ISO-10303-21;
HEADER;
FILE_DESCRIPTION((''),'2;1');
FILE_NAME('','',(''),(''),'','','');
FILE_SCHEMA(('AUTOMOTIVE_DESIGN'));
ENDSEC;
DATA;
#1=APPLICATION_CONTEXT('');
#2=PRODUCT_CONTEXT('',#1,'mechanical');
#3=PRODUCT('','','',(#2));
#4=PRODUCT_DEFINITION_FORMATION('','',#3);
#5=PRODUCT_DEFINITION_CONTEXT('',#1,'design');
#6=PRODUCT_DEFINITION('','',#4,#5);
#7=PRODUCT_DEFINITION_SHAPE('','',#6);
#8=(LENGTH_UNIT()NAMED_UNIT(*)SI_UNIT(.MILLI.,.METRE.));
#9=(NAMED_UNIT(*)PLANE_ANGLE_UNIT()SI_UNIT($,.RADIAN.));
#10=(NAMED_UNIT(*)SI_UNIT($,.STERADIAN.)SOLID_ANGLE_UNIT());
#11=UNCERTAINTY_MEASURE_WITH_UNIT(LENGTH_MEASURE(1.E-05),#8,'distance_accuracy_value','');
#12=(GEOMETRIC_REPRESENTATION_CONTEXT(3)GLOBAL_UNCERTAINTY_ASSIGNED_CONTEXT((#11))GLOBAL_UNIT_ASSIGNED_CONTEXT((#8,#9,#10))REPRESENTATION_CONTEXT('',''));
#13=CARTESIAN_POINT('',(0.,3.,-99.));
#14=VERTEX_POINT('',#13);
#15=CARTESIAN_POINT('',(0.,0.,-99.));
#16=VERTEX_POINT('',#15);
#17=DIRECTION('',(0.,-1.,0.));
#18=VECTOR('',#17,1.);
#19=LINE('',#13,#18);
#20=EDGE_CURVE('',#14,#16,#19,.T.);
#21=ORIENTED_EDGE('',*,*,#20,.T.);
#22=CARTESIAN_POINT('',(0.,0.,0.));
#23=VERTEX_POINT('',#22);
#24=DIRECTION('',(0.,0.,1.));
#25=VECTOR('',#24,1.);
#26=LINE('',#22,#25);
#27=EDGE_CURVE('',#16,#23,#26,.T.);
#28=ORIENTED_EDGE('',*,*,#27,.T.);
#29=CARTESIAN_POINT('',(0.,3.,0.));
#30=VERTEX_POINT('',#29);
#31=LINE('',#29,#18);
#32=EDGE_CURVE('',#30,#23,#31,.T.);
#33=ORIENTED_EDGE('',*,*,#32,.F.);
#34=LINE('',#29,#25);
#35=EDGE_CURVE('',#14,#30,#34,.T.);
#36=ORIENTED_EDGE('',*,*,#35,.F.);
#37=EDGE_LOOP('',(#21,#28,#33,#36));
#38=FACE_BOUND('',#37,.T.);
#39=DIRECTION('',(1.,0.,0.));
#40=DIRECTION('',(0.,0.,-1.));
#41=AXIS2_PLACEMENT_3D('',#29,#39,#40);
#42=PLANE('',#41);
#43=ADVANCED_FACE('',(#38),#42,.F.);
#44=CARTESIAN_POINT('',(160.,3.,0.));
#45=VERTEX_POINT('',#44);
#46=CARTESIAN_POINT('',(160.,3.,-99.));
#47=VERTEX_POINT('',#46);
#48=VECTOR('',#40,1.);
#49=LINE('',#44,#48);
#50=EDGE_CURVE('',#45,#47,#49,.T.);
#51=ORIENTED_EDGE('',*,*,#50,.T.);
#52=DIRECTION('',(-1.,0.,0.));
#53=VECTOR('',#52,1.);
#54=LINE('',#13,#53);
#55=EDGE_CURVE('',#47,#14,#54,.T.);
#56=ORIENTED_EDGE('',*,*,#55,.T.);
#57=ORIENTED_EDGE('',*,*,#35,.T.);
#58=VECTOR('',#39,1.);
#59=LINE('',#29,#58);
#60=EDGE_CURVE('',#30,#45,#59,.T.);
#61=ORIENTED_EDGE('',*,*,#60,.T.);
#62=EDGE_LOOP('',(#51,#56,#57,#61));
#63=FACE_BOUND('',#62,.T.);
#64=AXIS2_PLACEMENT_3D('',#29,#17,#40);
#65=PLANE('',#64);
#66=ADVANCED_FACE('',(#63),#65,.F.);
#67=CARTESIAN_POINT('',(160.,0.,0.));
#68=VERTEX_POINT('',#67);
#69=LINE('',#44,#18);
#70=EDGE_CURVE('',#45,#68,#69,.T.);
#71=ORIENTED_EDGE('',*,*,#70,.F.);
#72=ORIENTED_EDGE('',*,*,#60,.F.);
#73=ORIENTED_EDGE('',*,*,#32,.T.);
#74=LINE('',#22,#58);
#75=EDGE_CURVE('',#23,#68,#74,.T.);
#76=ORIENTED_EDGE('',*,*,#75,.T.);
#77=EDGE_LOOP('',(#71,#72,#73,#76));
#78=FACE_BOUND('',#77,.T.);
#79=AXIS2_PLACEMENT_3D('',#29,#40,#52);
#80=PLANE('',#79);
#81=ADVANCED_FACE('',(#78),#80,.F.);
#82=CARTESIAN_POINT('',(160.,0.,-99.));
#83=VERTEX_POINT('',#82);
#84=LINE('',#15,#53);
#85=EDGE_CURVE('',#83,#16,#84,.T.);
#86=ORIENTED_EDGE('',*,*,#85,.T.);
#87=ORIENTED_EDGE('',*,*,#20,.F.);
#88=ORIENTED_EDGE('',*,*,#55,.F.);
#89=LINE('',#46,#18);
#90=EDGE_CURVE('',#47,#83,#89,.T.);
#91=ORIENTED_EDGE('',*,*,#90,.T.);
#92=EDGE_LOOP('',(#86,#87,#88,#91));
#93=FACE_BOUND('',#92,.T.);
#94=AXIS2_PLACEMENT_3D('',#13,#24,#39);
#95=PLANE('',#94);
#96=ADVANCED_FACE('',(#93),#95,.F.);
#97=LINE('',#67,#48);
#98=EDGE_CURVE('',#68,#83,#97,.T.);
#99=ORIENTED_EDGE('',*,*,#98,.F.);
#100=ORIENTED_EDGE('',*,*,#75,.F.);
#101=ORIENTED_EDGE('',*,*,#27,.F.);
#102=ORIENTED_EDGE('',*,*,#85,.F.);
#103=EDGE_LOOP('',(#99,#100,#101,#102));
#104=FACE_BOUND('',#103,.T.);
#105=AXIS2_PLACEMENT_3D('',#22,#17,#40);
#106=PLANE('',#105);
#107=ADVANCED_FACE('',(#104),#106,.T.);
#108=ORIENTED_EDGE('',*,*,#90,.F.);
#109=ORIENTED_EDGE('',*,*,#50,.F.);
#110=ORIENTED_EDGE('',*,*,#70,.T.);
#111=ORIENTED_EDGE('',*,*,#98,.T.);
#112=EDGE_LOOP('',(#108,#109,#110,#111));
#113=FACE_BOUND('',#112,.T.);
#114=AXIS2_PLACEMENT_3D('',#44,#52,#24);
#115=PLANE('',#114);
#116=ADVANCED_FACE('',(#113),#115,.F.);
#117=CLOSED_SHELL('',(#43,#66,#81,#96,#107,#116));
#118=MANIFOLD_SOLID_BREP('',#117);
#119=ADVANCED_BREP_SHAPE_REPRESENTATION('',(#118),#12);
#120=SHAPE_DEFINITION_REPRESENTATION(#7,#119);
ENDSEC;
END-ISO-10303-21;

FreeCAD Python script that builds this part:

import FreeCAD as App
import Part
import Sketcher


def add_polygon(sketch, points):
    """Adds a closed chain of lines whose ends are joined by coincident constraints."""
    first, n = sketch.GeometryCount, len(points)
    for a, b in zip(points, points[1:] + points[:1]):
        sketch.addGeometry(Part.LineSegment(App.Vector(*a, 0), App.Vector(*b, 0)), False)
    for i in range(n):
        sketch.addConstraint(Sketcher.Constraint("Coincident", first + i, 2, first + (i + 1) % n, 1))

doc = App.newDocument("Part")
body = doc.addObject("PartDesign::Body", "Body")

# Sketch on XZ plane
sketch1 = body.newObject("Sketcher::SketchObject", "Sketch")
sketch1.AttachmentSupport = (doc.getObject("XZ_Plane"), [""])
sketch1.MapMode = "FlatFace"
add_polygon(sketch1, [(0, -99), (0, 0), (160, 0), (160, -99)])  # lines 0-3
sketch1.addConstraint(Sketcher.Constraint("Vertical", 0))
sketch1.addConstraint(Sketcher.Constraint("Horizontal", 1))
sketch1.addConstraint(Sketcher.Constraint("Vertical", 2))
sketch1.addConstraint(Sketcher.Constraint("Horizontal", 3))
sketch1.addConstraint(Sketcher.Constraint("Coincident", 0, 2, -1, 1))
sketch1.addConstraint(Sketcher.Constraint("DistanceX", 1, 1, 1, 2, 160.0))
sketch1.addConstraint(Sketcher.Constraint("DistanceY", 0, 1, 0, 2, 99.0))
pad1 = body.newObject("PartDesign::Pad", "Pad")
pad1.Profile = sketch1
pad1.Length = 3
pad1.Reversed = True

doc.recompute()
